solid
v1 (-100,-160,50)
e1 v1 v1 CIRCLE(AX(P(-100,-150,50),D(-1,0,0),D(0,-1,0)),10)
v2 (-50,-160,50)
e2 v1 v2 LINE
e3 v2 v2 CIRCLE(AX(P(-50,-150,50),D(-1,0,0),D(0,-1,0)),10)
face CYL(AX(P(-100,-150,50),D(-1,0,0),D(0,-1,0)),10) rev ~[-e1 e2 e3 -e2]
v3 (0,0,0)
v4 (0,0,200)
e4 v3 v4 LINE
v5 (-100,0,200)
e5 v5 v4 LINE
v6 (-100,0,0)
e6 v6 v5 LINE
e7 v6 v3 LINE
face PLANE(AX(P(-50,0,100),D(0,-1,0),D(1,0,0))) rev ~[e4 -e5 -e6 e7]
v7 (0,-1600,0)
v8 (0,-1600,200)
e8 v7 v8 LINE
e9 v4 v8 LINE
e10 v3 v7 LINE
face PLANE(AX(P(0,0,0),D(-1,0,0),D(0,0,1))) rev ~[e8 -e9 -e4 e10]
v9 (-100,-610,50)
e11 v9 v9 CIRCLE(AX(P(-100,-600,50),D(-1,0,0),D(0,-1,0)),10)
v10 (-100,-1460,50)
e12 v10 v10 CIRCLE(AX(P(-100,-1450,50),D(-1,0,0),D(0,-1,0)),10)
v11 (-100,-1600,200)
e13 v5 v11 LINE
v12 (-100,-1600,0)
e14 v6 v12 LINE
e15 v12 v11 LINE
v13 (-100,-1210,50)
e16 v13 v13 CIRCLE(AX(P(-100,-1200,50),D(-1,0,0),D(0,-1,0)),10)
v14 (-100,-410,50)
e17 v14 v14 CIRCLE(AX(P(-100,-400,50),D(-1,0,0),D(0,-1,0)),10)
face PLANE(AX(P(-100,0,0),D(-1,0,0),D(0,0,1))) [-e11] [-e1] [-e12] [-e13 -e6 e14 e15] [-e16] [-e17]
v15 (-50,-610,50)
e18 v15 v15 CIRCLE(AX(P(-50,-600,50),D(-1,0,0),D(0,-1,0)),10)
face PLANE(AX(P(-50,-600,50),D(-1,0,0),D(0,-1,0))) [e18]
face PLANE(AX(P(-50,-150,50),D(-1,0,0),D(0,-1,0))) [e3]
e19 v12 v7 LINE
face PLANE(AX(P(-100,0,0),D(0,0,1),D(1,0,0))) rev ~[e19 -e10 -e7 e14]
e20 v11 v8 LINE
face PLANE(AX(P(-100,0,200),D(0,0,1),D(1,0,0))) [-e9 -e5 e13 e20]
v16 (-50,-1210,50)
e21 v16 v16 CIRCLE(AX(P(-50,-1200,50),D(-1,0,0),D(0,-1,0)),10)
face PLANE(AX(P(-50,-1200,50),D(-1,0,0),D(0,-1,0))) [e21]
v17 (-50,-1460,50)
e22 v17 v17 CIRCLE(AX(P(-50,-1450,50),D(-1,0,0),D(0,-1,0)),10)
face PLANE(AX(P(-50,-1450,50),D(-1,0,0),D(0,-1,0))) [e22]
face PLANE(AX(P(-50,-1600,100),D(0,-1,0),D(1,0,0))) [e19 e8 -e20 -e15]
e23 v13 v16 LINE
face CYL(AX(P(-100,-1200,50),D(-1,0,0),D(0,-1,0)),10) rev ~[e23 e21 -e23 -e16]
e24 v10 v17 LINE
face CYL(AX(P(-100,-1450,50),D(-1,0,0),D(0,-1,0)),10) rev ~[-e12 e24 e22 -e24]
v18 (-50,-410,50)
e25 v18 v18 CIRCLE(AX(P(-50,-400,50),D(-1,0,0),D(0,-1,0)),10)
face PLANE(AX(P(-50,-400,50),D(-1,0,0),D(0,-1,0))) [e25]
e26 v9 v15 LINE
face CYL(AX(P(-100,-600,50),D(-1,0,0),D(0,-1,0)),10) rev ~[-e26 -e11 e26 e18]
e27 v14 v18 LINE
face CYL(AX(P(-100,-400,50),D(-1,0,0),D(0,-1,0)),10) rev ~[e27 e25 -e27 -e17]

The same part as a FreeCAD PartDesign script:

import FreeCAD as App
import Part
import Sketcher

V = App.Vector


def add_polygon(sketch, points):
    """Adds a closed chain of lines whose ends are joined by coincident constraints."""
    first, n = sketch.GeometryCount, len(points)
    for a, b in zip(points, points[1:] + points[:1]):
        sketch.addGeometry(Part.LineSegment(App.Vector(*a, 0), App.Vector(*b, 0)), False)
    for i in range(n):
        sketch.addConstraint(Sketcher.Constraint("Coincident", first + i, 2, first + (i + 1) % n, 1))

doc = App.newDocument("Part")
body = doc.addObject("PartDesign::Body", "Body")

# Sketch on XZ plane
sketch1 = doc.addObject("Sketcher::SketchObject", "Sketch")
body.addObject(sketch1)
sketch1.AttachmentSupport = (doc.XZ_Plane, [""])
sketch1.MapMode = "FlatFace"
add_polygon(sketch1, [(-100, 200), (-100, 0), (0, 0), (0, 200)])  # lines 0-3
sketch1.addConstraint(Sketcher.Constraint("Vertical", 0))
sketch1.addConstraint(Sketcher.Constraint("Horizontal", 1))
sketch1.addConstraint(Sketcher.Constraint("Vertical", 2))
sketch1.addConstraint(Sketcher.Constraint("Horizontal", 3))
sketch1.addConstraint(Sketcher.Constraint("Coincident", 1, 2, -1, 1))
sketch1.addConstraint(Sketcher.Constraint("DistanceX", 1, 1, 1, 2, 100.0))
sketch1.addConstraint(Sketcher.Constraint("DistanceY", 0, 2, 0, 1, 200.0))
pad1 = doc.addObject("PartDesign::Pad", "Pad")
body.addObject(pad1)
pad1.Profile = sketch1
pad1.Length = 1600

# Sketch on YZ plane
sketch2 = doc.addObject("Sketcher::SketchObject", "Sketch001")
body.addObject(sketch2)
sketch2.AttachmentSupport = (doc.YZ_Plane, [""])
sketch2.MapMode = "FlatFace"
sketch2.AttachmentOffset = App.Placement(V(0, 0, -100), App.Rotation())
sketch2.addGeometry(Part.Circle(V(-150, 50, 0), V(0, 0, 1), 10), False)
sketch2.addGeometry(Part.Circle(V(-400, 50, 0), V(0, 0, 1), 10), False)
sketch2.addGeometry(Part.Circle(V(-600, 50, 0), V(0, 0, 1), 10), False)
sketch2.addGeometry(Part.Circle(V(-1200, 50, 0), V(0, 0, 1), 10), False)
sketch2.addGeometry(Part.Circle(V(-1450, 50, 0), V(0, 0, 1), 10), False)
sketch2.addConstraint(Sketcher.Constraint("Equal", 0, 1))
sketch2.addConstraint(Sketcher.Constraint("Equal", 1, 2))
sketch2.addConstraint(Sketcher.Constraint("Equal", 2, 3))
sketch2.addConstraint(Sketcher.Constraint("Equal", 3, 4))
sketch2.addConstraint(Sketcher.Constraint("Horizontal", 0, 3, 1, 3))
sketch2.addConstraint(Sketcher.Constraint("Horizontal", 1, 3, 2, 3))
sketch2.addConstraint(Sketcher.Constraint("Horizontal", 2, 3, 3, 3))
sketch2.addConstraint(Sketcher.Constraint("Horizontal", 3, 3, 4, 3))
sketch2.addConstraint(Sketcher.Constraint("Diameter", 0, 20.0))
sketch2.addConstraint(Sketcher.Constraint("DistanceX", 0, 3, -1, 1, 150.0))
sketch2.addConstraint(Sketcher.Constraint("DistanceY", -1, 1, 0, 3, 50.0))
sketch2.addConstraint(Sketcher.Constraint("DistanceX", 1, 3, -1, 1, 400.0))
sketch2.addConstraint(Sketcher.Constraint("DistanceX", 2, 3, -1, 1, 600.0))
sketch2.addConstraint(Sketcher.Constraint("DistanceX", 3, 3, -1, 1, 1200.0))
sketch2.addConstraint(Sketcher.Constraint("DistanceX", 4, 3, -1, 1, 1450.0))
pocket1 = doc.addObject("PartDesign::Pocket", "Pocket")
body.addObject(pocket1)
pocket1.Profile = sketch2
pocket1.Length = 50
pocket1.Reversed = True

doc.recompute()
